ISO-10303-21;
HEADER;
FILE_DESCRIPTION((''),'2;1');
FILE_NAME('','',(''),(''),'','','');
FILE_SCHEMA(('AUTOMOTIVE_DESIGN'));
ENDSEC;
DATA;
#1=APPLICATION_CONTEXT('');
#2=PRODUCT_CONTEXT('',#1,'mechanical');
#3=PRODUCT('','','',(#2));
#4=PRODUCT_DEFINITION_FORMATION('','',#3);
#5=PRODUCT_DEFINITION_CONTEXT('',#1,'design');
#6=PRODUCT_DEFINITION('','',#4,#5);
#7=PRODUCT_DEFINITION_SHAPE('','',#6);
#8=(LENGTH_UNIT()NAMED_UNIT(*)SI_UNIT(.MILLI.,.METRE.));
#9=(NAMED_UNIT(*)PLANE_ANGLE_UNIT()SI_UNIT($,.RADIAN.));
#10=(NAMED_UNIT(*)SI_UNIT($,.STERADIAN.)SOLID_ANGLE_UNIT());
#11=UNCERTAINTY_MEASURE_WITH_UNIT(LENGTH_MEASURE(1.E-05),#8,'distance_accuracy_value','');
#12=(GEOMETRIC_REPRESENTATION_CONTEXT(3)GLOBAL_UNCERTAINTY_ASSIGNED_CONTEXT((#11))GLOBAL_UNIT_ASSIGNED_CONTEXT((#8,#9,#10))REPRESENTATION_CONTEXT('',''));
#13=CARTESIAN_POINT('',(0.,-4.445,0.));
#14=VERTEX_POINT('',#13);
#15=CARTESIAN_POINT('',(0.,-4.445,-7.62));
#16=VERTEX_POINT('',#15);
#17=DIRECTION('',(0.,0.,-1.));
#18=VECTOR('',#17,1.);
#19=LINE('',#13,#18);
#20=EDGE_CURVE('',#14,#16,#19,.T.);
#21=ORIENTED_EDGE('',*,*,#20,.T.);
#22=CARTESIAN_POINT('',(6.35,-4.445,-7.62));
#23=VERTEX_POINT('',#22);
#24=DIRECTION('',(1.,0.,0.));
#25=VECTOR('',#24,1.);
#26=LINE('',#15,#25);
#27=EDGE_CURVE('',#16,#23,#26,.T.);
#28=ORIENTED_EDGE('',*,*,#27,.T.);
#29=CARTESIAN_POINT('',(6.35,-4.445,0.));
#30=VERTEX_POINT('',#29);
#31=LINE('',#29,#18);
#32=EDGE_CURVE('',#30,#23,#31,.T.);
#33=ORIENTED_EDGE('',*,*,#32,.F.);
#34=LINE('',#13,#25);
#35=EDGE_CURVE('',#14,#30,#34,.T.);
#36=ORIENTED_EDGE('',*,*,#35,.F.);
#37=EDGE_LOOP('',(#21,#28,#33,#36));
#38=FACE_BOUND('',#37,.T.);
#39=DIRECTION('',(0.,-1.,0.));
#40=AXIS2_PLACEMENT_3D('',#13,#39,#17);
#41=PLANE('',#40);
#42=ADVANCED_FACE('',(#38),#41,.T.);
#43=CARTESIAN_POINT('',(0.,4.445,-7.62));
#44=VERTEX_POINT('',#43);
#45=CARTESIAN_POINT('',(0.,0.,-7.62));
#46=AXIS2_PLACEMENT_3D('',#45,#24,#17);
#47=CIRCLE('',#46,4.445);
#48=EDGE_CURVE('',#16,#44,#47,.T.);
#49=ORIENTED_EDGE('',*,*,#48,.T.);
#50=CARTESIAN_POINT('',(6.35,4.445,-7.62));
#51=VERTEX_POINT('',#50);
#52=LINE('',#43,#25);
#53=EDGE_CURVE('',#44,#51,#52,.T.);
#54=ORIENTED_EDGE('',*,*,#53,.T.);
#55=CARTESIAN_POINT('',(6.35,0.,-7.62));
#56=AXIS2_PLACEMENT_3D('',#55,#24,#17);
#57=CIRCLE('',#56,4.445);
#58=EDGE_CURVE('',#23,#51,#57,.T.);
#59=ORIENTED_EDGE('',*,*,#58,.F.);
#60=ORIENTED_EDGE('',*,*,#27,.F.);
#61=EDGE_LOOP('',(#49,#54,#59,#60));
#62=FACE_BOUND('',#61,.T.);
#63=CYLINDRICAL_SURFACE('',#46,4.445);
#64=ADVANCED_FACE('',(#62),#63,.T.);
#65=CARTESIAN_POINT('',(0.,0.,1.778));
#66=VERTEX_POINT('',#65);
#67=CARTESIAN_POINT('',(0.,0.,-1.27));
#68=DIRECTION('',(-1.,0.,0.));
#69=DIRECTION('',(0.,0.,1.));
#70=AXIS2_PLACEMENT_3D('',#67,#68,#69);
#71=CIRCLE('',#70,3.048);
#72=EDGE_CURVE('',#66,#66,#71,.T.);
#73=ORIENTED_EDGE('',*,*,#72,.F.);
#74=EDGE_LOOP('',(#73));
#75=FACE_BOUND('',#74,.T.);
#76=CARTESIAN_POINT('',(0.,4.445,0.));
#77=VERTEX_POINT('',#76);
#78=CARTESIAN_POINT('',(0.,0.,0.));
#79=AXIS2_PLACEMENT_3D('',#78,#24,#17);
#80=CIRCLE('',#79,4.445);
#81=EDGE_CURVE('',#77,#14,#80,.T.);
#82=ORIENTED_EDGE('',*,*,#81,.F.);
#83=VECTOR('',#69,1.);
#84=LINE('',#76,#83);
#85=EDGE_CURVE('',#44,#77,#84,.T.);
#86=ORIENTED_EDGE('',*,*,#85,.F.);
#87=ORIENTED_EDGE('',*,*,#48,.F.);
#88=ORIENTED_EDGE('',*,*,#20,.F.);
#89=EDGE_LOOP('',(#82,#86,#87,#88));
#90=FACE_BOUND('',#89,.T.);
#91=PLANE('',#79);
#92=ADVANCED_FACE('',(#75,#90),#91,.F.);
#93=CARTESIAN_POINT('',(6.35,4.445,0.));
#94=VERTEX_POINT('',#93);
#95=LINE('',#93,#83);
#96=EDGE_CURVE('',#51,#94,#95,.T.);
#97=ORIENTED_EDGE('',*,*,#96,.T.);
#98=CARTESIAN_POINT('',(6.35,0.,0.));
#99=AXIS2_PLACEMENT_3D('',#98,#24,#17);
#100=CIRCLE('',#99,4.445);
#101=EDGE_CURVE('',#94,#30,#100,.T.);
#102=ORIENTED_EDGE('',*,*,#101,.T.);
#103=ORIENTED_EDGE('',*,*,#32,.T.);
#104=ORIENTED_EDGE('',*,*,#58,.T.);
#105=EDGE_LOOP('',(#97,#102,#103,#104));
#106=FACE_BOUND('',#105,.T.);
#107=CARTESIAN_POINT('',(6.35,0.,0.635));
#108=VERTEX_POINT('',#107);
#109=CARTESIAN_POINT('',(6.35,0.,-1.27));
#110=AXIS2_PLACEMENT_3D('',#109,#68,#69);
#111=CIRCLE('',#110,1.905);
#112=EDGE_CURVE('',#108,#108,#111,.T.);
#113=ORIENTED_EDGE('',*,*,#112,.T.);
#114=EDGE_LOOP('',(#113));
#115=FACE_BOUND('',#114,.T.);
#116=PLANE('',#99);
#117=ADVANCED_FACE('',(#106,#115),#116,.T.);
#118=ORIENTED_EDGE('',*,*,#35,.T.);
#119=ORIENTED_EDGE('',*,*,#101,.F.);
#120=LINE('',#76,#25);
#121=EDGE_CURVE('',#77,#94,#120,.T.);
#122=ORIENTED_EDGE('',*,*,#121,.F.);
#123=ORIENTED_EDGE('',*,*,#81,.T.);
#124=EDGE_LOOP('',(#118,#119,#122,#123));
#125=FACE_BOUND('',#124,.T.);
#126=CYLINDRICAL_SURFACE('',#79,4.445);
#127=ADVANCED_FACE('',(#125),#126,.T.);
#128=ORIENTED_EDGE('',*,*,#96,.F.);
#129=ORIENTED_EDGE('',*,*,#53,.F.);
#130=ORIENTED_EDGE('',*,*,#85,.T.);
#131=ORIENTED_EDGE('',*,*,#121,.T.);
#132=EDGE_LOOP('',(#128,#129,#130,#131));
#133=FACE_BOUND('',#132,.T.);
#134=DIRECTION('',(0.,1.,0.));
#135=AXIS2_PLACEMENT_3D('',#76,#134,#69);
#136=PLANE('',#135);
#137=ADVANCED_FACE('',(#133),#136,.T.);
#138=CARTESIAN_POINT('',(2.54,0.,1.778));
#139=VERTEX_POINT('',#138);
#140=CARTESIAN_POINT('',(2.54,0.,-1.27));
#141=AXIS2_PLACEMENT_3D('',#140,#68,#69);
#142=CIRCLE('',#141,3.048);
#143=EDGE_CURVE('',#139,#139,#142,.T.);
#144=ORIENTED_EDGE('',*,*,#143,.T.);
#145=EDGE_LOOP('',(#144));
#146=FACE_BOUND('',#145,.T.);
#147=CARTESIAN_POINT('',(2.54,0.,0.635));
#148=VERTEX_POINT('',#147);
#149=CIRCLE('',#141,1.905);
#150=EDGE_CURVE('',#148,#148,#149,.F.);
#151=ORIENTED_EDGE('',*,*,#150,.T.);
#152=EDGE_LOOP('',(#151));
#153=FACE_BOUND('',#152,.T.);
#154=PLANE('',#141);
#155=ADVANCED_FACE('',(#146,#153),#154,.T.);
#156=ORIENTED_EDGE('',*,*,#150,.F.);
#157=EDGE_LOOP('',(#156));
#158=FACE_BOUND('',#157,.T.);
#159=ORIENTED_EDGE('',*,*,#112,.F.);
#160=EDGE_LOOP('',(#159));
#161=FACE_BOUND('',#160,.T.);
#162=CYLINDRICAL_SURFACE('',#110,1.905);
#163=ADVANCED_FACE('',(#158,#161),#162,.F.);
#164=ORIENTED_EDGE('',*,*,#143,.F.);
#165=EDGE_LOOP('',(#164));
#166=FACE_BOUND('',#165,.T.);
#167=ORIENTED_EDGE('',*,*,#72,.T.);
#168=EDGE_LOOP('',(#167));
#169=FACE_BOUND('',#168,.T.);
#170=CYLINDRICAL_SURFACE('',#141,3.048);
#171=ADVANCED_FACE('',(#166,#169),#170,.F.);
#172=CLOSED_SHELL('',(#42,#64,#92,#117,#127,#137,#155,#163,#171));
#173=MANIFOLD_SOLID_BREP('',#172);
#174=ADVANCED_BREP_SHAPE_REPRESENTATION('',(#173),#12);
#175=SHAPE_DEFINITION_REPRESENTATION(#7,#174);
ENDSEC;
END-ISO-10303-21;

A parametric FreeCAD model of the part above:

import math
import FreeCAD as App
import Part
import Sketcher

V = App.Vector
Q = App.Units.Quantity

doc = App.newDocument("Part")
params = doc.addObject("Spreadsheet::Sheet", "Params")
for row, (alias, value) in enumerate([
    ("sketch1_diameter", "0.15 in"),
    ("sketch1_height", "0.3 in"),
    ("sketch1_radius", "0.125 in"),
    ("pad1_length", "0.25 in"),
    ("sketch2_height", "0.3 in"),
    ("sketch2_radius", "0.175 in"),
    ("sketch2_radius2", "0.125 in"),
    ("pad2_length", "0.25 in"),
    ("sketch3_diameter", "0.15 in"),
    ("pad3_length", "0.25 in"),
    ("sketch4_diameter", "0.15 in"),
    ("sketch5_diameter", "0.24 in"),
    ("pocket2_length", "0.1 in"),
], start=1):
    params.set(f"A{row}", alias)
    params.set(f"B{row}", "=" + value)
    params.setAlias(f"B{row}", alias)

body = doc.addObject("PartDesign::Body", "Body")

# Sketch on YZ plane
sketch1 = doc.addObject("Sketcher::SketchObject", "Sketch")
body.addObject(sketch1)
sketch1.AttachmentSupport = (doc.YZ_Plane, [""])
sketch1.MapMode = "FlatFace"
sketch1.addGeometry([
    Part.LineSegment(V(-3.175, 0, 0), V(-3.175, -7.62, 0)),  # 0
    Part.ArcOfCircle(Part.Circle(V(0, -7.62, 0), V(0, 0, 1), 3.175), math.radians(180), math.radians(360)),  # 1
    Part.LineSegment(V(3.175, -7.62, 0), V(3.175, 0, 0)),  # 2
    Part.ArcOfCircle(Part.Circle(V(0, 0, 0), V(0, 0, 1), 3.175), math.radians(0), math.radians(180)),  # 3
    Part.Circle(V(0, 0, 0), V(0, 0, 1), 1.905),  # 4
], False)
sketch1.addConstraint([
    Sketcher.Constraint("Tangent", 0, 2, 1, 1),
    Sketcher.Constraint("Tangent", 1, 2, 2, 1),
    Sketcher.Constraint("Tangent", 2, 2, 3, 1),
    Sketcher.Constraint("Tangent", 3, 2, 0, 1),
    Sketcher.Constraint("Vertical", 0),
    Sketcher.Constraint("Vertical", 2),
    Sketcher.Constraint("Coincident", 3, 3, -1, 1),
    Sketcher.Constraint("Coincident", 4, 3, -1, 1),
    Sketcher.Constraint("Diameter", 4, Q("0.15 in")),
    Sketcher.Constraint("DistanceY", 0, 2, 0, 1, Q("0.3 in")),
    Sketcher.Constraint("Radius", 1, Q("0.125 in")),
])
sketch1.setExpression("Constraints[8]", "Params.sketch1_diameter")
sketch1.setExpression("Constraints[9]", "Params.sketch1_height")
sketch1.setExpression("Constraints[10]", "Params.sketch1_radius")
pad1 = doc.addObject("PartDesign::Pad", "Pad")
body.addObject(pad1)
pad1.Profile = sketch1
pad1.setExpression("Length", "Params.pad1_length")

# Sketch on YZ plane
sketch2 = doc.addObject("Sketcher::SketchObject", "Sketch001")
body.addObject(sketch2)
sketch2.AttachmentSupport = (doc.YZ_Plane, [""])
sketch2.MapMode = "FlatFace"
sketch2.addGeometry([
    Part.LineSegment(V(4.445, -7.62, 0), V(4.445, 0, 0)),  # 0
    Part.ArcOfCircle(Part.Circle(V(0, 0, 0), V(0, 0, 1), 4.445), math.radians(0), math.radians(180)),  # 1
    Part.LineSegment(V(-4.445, 0, 0), V(-4.445, -7.62, 0)),  # 2
    Part.ArcOfCircle(Part.Circle(V(0, -7.62, 0), V(0, 0, 1), 4.445), math.radians(180), math.radians(360)),  # 3
    Part.ArcOfCircle(Part.Circle(V(0, 0, 0), V(0, 0, 1), 3.175), math.radians(0), math.radians(180)),  # 4
    Part.LineSegment(V(3.175, 0, 0), V(3.175, -7.62, 0)),  # 5
    Part.ArcOfCircle(Part.Circle(V(0, -7.62, 0), V(0, 0, 1), 3.175), math.radians(180), math.radians(360)),  # 6
    Part.LineSegment(V(-3.175, -7.62, 0), V(-3.175, 0, 0)),  # 7
], False)
sketch2.addConstraint([
    Sketcher.Constraint("Tangent", 0, 2, 1, 1),
    Sketcher.Constraint("Tangent", 1, 2, 2, 1),
    Sketcher.Constraint("Tangent", 2, 2, 3, 1),
    Sketcher.Constraint("Tangent", 3, 2, 0, 1),
    Sketcher.Constraint("Tangent", 4, 1, 5, 1),
    Sketcher.Constraint("Tangent", 5, 2, 6, 2),
    Sketcher.Constraint("Tangent", 6, 1, 7, 1),
    Sketcher.Constraint("Tangent", 7, 2, 4, 2),
    Sketcher.Constraint("Vertical", 0),
    Sketcher.Constraint("Vertical", 2),
    Sketcher.Constraint("Vertical", 5),
    Sketcher.Constraint("Vertical", 7),
    Sketcher.Constraint("Coincident", 1, 3, -1, 1),
    Sketcher.Constraint("Coincident", 4, 3, -1, 1),
    Sketcher.Constraint("Horizontal", 6, 3, 2, 2),
    Sketcher.Constraint("DistanceY", 0, 1, 0, 2, Q("0.3 in")),
    Sketcher.Constraint("Radius", 1, Q("0.175 in")),
    Sketcher.Constraint("Radius", 4, Q("0.125 in")),
])
sketch2.setExpression("Constraints[15]", "Params.sketch2_height")
sketch2.setExpression("Constraints[16]", "Params.sketch2_radius")
sketch2.setExpression("Constraints[17]", "Params.sketch2_radius2")
pad2 = doc.addObject("PartDesign::Pad", "Pad001")
body.addObject(pad2)
pad2.Profile = sketch2
pad2.setExpression("Length", "Params.pad2_length")

# Sketch on YZ plane
sketch3 = doc.addObject("Sketcher::SketchObject", "Sketch002")
body.addObject(sketch3)
sketch3.AttachmentSupport = (doc.YZ_Plane, [""])
sketch3.MapMode = "FlatFace"
sketch3.addGeometry(Part.Circle(V(0, 0, 0), V(0, 0, 1), 1.905), False)
sketch3.addConstraint([
    Sketcher.Constraint("Coincident", 0, 3, -1, 1),
    Sketcher.Constraint("Diameter", 0, Q("0.15 in")),
])
sketch3.setExpression("Constraints[1]", "Params.sketch3_diameter")
pad3 = doc.addObject("PartDesign::Pad", "Pad002")
body.addObject(pad3)
pad3.Profile = sketch3
pad3.setExpression("Length", "Params.pad3_length")

# Sketch on YZ plane
sketch4 = doc.addObject("Sketcher::SketchObject", "Sketch003")
body.addObject(sketch4)
sketch4.AttachmentSupport = (doc.YZ_Plane, [""])
sketch4.MapMode = "FlatFace"
sketch4.addGeometry(Part.Circle(V(0, -1.27, 0), V(0, 0, 1), 1.905), False)
sketch4.addConstraint([
    Sketcher.Constraint("PointOnObject", 0, 3, -2),
    Sketcher.Constraint("Diameter", 0, Q("0.15 in")),
    Sketcher.Constraint("DistanceY", 0, 3, -1, 1, Q("0.05 in")),
])
sketch4.setExpression("Constraints[1]", "Params.sketch4_diameter")
pocket1 = doc.addObject("PartDesign::Pocket", "Pocket")
body.addObject(pocket1)
pocket1.Profile = sketch4
pocket1.Type = "ThroughAll"
pocket1.Reversed = True

# Sketch on YZ plane
sketch5 = doc.addObject("Sketcher::SketchObject", "Sketch004")
body.addObject(sketch5)
sketch5.AttachmentSupport = (doc.YZ_Plane, [""])
sketch5.MapMode = "FlatFace"
sketch5.addGeometry(Part.Circle(V(0, -1.27, 0), V(0, 0, 1), 3.048), False)
sketch5.addConstraint([
    Sketcher.Constraint("PointOnObject", 0, 3, -2),
    Sketcher.Constraint("Diameter", 0, Q("0.24 in")),
    Sketcher.Constraint("DistanceY", 0, 3, -1, 1, Q("0.05 in")),
])
sketch5.setExpression("Constraints[1]", "Params.sketch5_diameter")
pocket2 = doc.addObject("PartDesign::Pocket", "Pocket001")
body.addObject(pocket2)
pocket2.Profile = sketch5
pocket2.setExpression("Length", "Params.pocket2_length")
pocket2.Reversed = True

doc.recompute()
